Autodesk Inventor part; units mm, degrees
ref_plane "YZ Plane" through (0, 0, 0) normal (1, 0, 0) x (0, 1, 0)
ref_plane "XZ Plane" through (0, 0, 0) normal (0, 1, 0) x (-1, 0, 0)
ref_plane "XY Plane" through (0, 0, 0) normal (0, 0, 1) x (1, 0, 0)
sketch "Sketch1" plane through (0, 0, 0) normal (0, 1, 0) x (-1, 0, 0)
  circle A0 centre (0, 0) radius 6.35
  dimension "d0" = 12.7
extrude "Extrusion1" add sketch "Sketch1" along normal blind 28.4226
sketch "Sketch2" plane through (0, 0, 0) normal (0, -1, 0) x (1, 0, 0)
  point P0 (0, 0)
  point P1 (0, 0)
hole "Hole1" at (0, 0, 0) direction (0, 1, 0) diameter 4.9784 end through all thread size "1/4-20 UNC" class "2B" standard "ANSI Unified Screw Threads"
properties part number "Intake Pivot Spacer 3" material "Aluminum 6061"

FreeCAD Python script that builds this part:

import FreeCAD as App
import Part
import Sketcher
from FreeCAD import Vector
Q = App.Units.Quantity

doc = App.newDocument("Part")
body = doc.addObject("PartDesign::Body", "Body")

# Sketch on XZ plane
sketch1 = body.newObject("Sketcher::SketchObject", "Sketch")
sketch1.AttachmentSupport = (doc.getObject("XZ_Plane"), [""])
sketch1.MapMode = "FlatFace"
sketch1.addGeometry(Part.Circle(Vector(0, 0, 0), Vector(0, 0, 1), 6), False)
sketch1.addConstraint([
    Sketcher.Constraint("Coincident", 0, 3, -1, 1),
    Sketcher.Constraint("Diameter", 0, Q("0.5 in")),
])
pad1 = body.newObject("PartDesign::Pad", "Pad")
pad1.Profile = sketch1
pad1.Length = Q("1.119 in")
pad1.Reversed = True

# Sketch on XZ plane
sketch2 = body.newObject("Sketcher::SketchObject", "Sketch001")
sketch2.AttachmentSupport = (doc.getObject("XZ_Plane"), [""])
sketch2.MapMode = "FlatFace"
sketch2.addGeometry(Part.Circle(Vector(0, 0, 0), Vector(0, 0, 1), 2.5), False)
sketch2.addConstraint([
    Sketcher.Constraint("Coincident", 0, 3, -1, 1),
    Sketcher.Constraint("Diameter", 0, Q("0.196 in")),
])
doc.recompute()
hole = body.newObject("PartDesign::Hole", "Hole")
hole.Profile = sketch2
hole.ThreadType = "None"
hole.Diameter = Q("0.196 in")
hole.DepthType = "ThroughAll"

doc.recompute()
